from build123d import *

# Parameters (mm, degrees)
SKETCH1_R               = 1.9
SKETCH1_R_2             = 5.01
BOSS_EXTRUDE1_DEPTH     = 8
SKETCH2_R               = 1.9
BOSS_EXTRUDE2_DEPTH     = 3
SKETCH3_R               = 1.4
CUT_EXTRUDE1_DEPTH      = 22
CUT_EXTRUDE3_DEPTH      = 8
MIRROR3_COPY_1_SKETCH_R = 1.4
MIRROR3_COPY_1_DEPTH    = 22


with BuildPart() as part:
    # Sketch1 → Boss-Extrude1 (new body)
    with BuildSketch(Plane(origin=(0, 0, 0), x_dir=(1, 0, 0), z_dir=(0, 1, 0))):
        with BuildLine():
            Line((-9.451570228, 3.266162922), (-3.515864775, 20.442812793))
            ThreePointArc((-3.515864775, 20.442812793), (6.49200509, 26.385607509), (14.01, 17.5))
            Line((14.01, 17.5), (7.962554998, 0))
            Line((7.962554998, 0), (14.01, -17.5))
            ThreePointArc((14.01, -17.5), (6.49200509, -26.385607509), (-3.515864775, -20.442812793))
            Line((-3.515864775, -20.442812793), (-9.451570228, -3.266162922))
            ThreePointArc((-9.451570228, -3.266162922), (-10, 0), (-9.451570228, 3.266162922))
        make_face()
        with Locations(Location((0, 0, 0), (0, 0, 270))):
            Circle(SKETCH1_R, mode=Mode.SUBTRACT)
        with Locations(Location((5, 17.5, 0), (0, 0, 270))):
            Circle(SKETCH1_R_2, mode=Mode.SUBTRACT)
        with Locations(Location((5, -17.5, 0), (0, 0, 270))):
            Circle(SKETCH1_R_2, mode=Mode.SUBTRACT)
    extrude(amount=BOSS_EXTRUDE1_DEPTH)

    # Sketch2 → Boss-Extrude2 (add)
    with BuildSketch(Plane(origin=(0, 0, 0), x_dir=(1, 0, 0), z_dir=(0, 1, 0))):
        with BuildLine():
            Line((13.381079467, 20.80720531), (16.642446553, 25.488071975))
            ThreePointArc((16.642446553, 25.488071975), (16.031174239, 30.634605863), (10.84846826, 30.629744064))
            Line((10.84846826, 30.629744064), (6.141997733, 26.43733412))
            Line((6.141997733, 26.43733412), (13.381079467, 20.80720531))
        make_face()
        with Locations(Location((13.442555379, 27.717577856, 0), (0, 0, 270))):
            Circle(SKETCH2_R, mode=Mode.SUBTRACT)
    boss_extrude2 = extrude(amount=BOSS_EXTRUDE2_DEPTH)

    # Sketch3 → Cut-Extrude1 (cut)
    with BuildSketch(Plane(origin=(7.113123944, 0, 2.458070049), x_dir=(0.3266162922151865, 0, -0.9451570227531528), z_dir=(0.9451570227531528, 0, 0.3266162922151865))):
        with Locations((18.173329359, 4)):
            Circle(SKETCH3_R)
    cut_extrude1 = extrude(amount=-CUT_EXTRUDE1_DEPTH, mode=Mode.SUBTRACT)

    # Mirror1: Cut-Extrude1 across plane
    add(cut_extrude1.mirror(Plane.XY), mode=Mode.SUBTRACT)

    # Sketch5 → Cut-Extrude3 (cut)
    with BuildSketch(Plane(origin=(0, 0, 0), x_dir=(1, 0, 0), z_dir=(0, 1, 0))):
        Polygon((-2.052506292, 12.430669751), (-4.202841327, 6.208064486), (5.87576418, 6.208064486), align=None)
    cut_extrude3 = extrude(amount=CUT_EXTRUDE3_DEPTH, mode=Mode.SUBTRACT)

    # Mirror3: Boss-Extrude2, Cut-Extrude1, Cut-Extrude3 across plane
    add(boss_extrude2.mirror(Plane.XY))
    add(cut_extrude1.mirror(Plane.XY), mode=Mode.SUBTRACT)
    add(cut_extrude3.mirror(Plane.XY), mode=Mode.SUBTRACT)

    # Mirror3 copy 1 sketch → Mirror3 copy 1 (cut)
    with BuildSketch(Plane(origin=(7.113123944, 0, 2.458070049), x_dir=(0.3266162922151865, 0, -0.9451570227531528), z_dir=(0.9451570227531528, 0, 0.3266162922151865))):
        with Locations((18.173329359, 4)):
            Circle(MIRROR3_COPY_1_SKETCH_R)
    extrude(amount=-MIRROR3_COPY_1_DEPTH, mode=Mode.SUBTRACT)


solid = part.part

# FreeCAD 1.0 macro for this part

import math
import FreeCAD as App
import Part
import Sketcher
Q = App.Units.Quantity

doc = App.newDocument("Part")
body = doc.addObject("PartDesign::Body", "Body")

# Sketch on XZ plane
sketch1 = body.newObject("Sketcher::SketchObject", "Sketch")
sketch1.AttachmentSupport = (doc.getObject("XZ_Plane"), [""])
sketch1.MapMode = "FlatFace"
sketch1.addGeometry([
    Part.LineSegment(App.Vector(-3.5, -20.4, 0), App.Vector(-9.5, -3.3, 0)),  # 0
    Part.ArcOfCircle(Part.Circle(App.Vector(0, 0, 0), App.Vector(0, 0, 1), 10), math.radians(161), math.radians(199)),  # 1
    Part.LineSegment(App.Vector(-9.5, 3.3, 0), App.Vector(-3.5, 20.4, 0)),  # 2
    Part.ArcOfCircle(Part.Circle(App.Vector(5, 17.5, 0), App.Vector(0, 0, 1), 9), math.radians(0), math.radians(161)),  # 3
    Part.LineSegment(App.Vector(14, 17.5, 0), App.Vector(8, 0, 0)),  # 4
    Part.LineSegment(App.Vector(8, 0, 0), App.Vector(14, -17.5, 0)),  # 5
    Part.ArcOfCircle(Part.Circle(App.Vector(5, -17.5, 0), App.Vector(0, 0, 1), 9), math.radians(-161), math.radians(0)),  # 6
    Part.Circle(App.Vector(5, 17.5, 0), App.Vector(0, 0, 1), 5),  # 7
    Part.Circle(App.Vector(5, -17.5, 0), App.Vector(0, 0, 1), 5),  # 8
    Part.Circle(App.Vector(0, 0, 0), App.Vector(0, 0, 1), 1.9),  # 9
], False)
sketch1.addConstraint([
    Sketcher.Constraint("Tangent", 0, 2, 1, 2),
    Sketcher.Constraint("Tangent", 1, 1, 2, 1),
    Sketcher.Constraint("Tangent", 2, 2, 3, 2),
    Sketcher.Constraint("Coincident", 3, 1, 4, 1),
    Sketcher.Constraint("Coincident", 4, 2, 5, 1),
    Sketcher.Constraint("Coincident", 5, 2, 6, 2),
    Sketcher.Constraint("Tangent", 6, 1, 0, 1),
    Sketcher.Constraint("Coincident", 1, 3, -1, 1),
    Sketcher.Constraint("Coincident", 9, 3, -1, 1),
    Sketcher.Constraint("Coincident", 7, 3, 3, 3),
    Sketcher.Constraint("Coincident", 8, 3, 6, 3),
    Sketcher.Constraint("Equal", 3, 6),
    Sketcher.Constraint("Equal", 7, 8),
    Sketcher.Constraint("Symmetric", 3, 3, 6, 3, -1),
    Sketcher.Constraint("PointOnObject", 4, 2, -1),
    Sketcher.Constraint("Parallel", 2, 4),
    Sketcher.Constraint("Parallel", 0, 5),
    Sketcher.Constraint("Horizontal", 7, 3, 3, 1),
    Sketcher.Constraint("Radius", 1, Q("10 mm")),
    Sketcher.Constraint("Diameter", 9, Q("3.8 mm")),
    Sketcher.Constraint("Diameter", 7, Q("10.02 mm")),
    Sketcher.Constraint("Radius", 3, Q("9.01 mm")),
    Sketcher.Constraint("DistanceX", -1, 1, 3, 3, Q("5 mm")),
    Sketcher.Constraint("DistanceY", 6, 3, 3, 3, Q("35 mm")),
])
pad1 = body.newObject("PartDesign::Pad", "Pad")
pad1.Profile = sketch1
pad1.Length = 8
pad1.Reversed = True

# Sketch on XZ plane
sketch2 = body.newObject("Sketcher::SketchObject", "Sketch001")
sketch2.AttachmentSupport = (doc.getObject("XZ_Plane"), [""])
sketch2.MapMode = "FlatFace"
sketch2.addGeometry([
    Part.LineSegment(App.Vector(13.4, -20.8, 0), App.Vector(16.6, -25.5, 0)),  # 0
    Part.ArcOfCircle(Part.Circle(App.Vector(13.4, -27.7, 0), App.Vector(0, 0, 1), 3.9), math.radians(-132), math.radians(35)),  # 1
    Part.LineSegment(App.Vector(10.8, -30.6, 0), App.Vector(6.1, -26.4, 0)),  # 2
    Part.LineSegment(App.Vector(6.1, -26.4, 0), App.Vector(13.4, -20.8, 0)),  # 3
    Part.Circle(App.Vector(13.4, -27.7, 0), App.Vector(0, 0, 1), 1.9),  # 4
], False)
sketch2.addConstraint([
    Sketcher.Constraint("Tangent", 0, 2, 1, 2),
    Sketcher.Constraint("Tangent", 1, 1, 2, 1),
    Sketcher.Constraint("Coincident", 2, 2, 3, 1),
    Sketcher.Constraint("Coincident", 3, 2, 0, 1),
    Sketcher.Constraint("Coincident", 4, 3, 1, 3),
    Sketcher.Constraint("Diameter", 4, Q("3.8 mm")),
    Sketcher.Constraint("Radius", 1, Q("3.9 mm")),
    Sketcher.Constraint("Distance", 0, Q("5.705 mm")),
    Sketcher.Constraint("Distance", 2, Q("6.302949 mm")),
    Sketcher.Constraint("Distance", 3, Q("9.17075 mm")),
    Sketcher.Constraint("DistanceY", 0, 2, -1, 1, Q("25.488072 mm")),
    Sketcher.Constraint("DistanceX", -1, 1, 1, 1, Q("10.848468 mm")),
    Sketcher.Constraint("DistanceX", -1, 1, 3, 2, Q("13.381079 mm")),
])
pad2 = body.newObject("PartDesign::Pad", "Pad001")
pad2.Profile = sketch2
pad2.Length = 3
pad2.Reversed = True

# Sketch on an angled plane
sketch3 = body.newObject("Sketcher::SketchObject", "Sketch002")
sketch3.Placement = App.Placement(App.Vector(7.113124, 0, 2.45807), App.Rotation(App.Vector(0.326616292, 0, -0.945157023), App.Vector(0, 1, 0), App.Vector(0.945157023, 0, 0.326616292), "ZXY"))
sketch3.addGeometry(Part.Circle(App.Vector(18.2, 4, 0), App.Vector(0, 0, 1), 1.4), False)
sketch3.addConstraint([
    Sketcher.Constraint("Diameter", 0, Q("2.8 mm")),
    Sketcher.Constraint("DistanceY", -1, 1, 0, 3, Q("4 mm")),
    Sketcher.Constraint("DistanceX", -1, 1, 0, 3, Q("18.173329 mm")),
])
pocket1 = body.newObject("PartDesign::Pocket", "Pocket")
pocket1.Profile = sketch3
pocket1.Length = 22
doc.recompute()

mirrored = body.newObject("PartDesign::Mirrored", "Mirrored")
mirrored.Originals = [pocket1]
mirrored.MirrorPlane = (doc.getObject("XY_Plane"), [""])
body.Tip = mirrored

# Sketch on XZ plane
sketch4 = body.newObject("Sketcher::SketchObject", "Sketch003")
sketch4.AttachmentSupport = (doc.getObject("XZ_Plane"), [""])
sketch4.MapMode = "FlatFace"
sketch4.addGeometry([
    Part.LineSegment(App.Vector(-2, -12, 0), App.Vector(-4, -6, 0)),
    Part.LineSegment(App.Vector(-4, -6, 0), App.Vector(6, -6, 0)),
    Part.LineSegment(App.Vector(6, -6, 0), App.Vector(-2, -12, 0)),
], False)
sketch4.addConstraint([
    Sketcher.Constraint("Coincident", 0, 2, 1, 1),
    Sketcher.Constraint("Coincident", 1, 2, 2, 1),
    Sketcher.Constraint("Coincident", 2, 2, 0, 1),
    Sketcher.Constraint("Horizontal", 1),
    Sketcher.Constraint("DistanceX", 1, 1, 1, 2, Q("10.078606 mm")),
    Sketcher.Constraint("DistanceX", 0, 2, -1, 1, Q("4.202841 mm")),
    Sketcher.Constraint("DistanceY", 2, 2, -1, 1, Q("12.43067 mm")),
    Sketcher.Constraint("DistanceX", 2, 2, 1, 2, Q("7.92827 mm")),
    Sketcher.Constraint("Distance", 0, Q("6.583674 mm")),
])
pocket2 = body.newObject("PartDesign::Pocket", "Pocket001")
pocket2.Profile = sketch4
pocket2.Length = 8
doc.recompute()

mirrored2 = body.newObject("PartDesign::Mirrored", "Mirrored001")
mirrored2.Originals = [pad2, pocket1, pocket2]
mirrored2.MirrorPlane = (doc.getObject("XY_Plane"), [""])
body.Tip = mirrored2

# Sketch on an angled plane
sketch5 = body.newObject("Sketcher::SketchObject", "Sketch004")
sketch5.Placement = App.Placement(App.Vector(7.113124, 0, 2.45807), App.Rotation(App.Vector(0.326616292, 0, -0.945157023), App.Vector(0, 1, 0), App.Vector(0.945157023, 0, 0.326616292), "ZXY"))
sketch5.addGeometry(Part.Circle(App.Vector(18.2, 4, 0), App.Vector(0, 0, 1), 1.4), False)
sketch5.addConstraint([
    Sketcher.Constraint("Diameter", 0, Q("2.8 mm")),
    Sketcher.Constraint("DistanceY", -1, 1, 0, 3, Q("4 mm")),
    Sketcher.Constraint("DistanceX", -1, 1, 0, 3, Q("18.173329 mm")),
])
pocket3 = body.newObject("PartDesign::Pocket", "Pocket002")
pocket3.Profile = sketch5
pocket3.Length = 22

doc.recompute()
